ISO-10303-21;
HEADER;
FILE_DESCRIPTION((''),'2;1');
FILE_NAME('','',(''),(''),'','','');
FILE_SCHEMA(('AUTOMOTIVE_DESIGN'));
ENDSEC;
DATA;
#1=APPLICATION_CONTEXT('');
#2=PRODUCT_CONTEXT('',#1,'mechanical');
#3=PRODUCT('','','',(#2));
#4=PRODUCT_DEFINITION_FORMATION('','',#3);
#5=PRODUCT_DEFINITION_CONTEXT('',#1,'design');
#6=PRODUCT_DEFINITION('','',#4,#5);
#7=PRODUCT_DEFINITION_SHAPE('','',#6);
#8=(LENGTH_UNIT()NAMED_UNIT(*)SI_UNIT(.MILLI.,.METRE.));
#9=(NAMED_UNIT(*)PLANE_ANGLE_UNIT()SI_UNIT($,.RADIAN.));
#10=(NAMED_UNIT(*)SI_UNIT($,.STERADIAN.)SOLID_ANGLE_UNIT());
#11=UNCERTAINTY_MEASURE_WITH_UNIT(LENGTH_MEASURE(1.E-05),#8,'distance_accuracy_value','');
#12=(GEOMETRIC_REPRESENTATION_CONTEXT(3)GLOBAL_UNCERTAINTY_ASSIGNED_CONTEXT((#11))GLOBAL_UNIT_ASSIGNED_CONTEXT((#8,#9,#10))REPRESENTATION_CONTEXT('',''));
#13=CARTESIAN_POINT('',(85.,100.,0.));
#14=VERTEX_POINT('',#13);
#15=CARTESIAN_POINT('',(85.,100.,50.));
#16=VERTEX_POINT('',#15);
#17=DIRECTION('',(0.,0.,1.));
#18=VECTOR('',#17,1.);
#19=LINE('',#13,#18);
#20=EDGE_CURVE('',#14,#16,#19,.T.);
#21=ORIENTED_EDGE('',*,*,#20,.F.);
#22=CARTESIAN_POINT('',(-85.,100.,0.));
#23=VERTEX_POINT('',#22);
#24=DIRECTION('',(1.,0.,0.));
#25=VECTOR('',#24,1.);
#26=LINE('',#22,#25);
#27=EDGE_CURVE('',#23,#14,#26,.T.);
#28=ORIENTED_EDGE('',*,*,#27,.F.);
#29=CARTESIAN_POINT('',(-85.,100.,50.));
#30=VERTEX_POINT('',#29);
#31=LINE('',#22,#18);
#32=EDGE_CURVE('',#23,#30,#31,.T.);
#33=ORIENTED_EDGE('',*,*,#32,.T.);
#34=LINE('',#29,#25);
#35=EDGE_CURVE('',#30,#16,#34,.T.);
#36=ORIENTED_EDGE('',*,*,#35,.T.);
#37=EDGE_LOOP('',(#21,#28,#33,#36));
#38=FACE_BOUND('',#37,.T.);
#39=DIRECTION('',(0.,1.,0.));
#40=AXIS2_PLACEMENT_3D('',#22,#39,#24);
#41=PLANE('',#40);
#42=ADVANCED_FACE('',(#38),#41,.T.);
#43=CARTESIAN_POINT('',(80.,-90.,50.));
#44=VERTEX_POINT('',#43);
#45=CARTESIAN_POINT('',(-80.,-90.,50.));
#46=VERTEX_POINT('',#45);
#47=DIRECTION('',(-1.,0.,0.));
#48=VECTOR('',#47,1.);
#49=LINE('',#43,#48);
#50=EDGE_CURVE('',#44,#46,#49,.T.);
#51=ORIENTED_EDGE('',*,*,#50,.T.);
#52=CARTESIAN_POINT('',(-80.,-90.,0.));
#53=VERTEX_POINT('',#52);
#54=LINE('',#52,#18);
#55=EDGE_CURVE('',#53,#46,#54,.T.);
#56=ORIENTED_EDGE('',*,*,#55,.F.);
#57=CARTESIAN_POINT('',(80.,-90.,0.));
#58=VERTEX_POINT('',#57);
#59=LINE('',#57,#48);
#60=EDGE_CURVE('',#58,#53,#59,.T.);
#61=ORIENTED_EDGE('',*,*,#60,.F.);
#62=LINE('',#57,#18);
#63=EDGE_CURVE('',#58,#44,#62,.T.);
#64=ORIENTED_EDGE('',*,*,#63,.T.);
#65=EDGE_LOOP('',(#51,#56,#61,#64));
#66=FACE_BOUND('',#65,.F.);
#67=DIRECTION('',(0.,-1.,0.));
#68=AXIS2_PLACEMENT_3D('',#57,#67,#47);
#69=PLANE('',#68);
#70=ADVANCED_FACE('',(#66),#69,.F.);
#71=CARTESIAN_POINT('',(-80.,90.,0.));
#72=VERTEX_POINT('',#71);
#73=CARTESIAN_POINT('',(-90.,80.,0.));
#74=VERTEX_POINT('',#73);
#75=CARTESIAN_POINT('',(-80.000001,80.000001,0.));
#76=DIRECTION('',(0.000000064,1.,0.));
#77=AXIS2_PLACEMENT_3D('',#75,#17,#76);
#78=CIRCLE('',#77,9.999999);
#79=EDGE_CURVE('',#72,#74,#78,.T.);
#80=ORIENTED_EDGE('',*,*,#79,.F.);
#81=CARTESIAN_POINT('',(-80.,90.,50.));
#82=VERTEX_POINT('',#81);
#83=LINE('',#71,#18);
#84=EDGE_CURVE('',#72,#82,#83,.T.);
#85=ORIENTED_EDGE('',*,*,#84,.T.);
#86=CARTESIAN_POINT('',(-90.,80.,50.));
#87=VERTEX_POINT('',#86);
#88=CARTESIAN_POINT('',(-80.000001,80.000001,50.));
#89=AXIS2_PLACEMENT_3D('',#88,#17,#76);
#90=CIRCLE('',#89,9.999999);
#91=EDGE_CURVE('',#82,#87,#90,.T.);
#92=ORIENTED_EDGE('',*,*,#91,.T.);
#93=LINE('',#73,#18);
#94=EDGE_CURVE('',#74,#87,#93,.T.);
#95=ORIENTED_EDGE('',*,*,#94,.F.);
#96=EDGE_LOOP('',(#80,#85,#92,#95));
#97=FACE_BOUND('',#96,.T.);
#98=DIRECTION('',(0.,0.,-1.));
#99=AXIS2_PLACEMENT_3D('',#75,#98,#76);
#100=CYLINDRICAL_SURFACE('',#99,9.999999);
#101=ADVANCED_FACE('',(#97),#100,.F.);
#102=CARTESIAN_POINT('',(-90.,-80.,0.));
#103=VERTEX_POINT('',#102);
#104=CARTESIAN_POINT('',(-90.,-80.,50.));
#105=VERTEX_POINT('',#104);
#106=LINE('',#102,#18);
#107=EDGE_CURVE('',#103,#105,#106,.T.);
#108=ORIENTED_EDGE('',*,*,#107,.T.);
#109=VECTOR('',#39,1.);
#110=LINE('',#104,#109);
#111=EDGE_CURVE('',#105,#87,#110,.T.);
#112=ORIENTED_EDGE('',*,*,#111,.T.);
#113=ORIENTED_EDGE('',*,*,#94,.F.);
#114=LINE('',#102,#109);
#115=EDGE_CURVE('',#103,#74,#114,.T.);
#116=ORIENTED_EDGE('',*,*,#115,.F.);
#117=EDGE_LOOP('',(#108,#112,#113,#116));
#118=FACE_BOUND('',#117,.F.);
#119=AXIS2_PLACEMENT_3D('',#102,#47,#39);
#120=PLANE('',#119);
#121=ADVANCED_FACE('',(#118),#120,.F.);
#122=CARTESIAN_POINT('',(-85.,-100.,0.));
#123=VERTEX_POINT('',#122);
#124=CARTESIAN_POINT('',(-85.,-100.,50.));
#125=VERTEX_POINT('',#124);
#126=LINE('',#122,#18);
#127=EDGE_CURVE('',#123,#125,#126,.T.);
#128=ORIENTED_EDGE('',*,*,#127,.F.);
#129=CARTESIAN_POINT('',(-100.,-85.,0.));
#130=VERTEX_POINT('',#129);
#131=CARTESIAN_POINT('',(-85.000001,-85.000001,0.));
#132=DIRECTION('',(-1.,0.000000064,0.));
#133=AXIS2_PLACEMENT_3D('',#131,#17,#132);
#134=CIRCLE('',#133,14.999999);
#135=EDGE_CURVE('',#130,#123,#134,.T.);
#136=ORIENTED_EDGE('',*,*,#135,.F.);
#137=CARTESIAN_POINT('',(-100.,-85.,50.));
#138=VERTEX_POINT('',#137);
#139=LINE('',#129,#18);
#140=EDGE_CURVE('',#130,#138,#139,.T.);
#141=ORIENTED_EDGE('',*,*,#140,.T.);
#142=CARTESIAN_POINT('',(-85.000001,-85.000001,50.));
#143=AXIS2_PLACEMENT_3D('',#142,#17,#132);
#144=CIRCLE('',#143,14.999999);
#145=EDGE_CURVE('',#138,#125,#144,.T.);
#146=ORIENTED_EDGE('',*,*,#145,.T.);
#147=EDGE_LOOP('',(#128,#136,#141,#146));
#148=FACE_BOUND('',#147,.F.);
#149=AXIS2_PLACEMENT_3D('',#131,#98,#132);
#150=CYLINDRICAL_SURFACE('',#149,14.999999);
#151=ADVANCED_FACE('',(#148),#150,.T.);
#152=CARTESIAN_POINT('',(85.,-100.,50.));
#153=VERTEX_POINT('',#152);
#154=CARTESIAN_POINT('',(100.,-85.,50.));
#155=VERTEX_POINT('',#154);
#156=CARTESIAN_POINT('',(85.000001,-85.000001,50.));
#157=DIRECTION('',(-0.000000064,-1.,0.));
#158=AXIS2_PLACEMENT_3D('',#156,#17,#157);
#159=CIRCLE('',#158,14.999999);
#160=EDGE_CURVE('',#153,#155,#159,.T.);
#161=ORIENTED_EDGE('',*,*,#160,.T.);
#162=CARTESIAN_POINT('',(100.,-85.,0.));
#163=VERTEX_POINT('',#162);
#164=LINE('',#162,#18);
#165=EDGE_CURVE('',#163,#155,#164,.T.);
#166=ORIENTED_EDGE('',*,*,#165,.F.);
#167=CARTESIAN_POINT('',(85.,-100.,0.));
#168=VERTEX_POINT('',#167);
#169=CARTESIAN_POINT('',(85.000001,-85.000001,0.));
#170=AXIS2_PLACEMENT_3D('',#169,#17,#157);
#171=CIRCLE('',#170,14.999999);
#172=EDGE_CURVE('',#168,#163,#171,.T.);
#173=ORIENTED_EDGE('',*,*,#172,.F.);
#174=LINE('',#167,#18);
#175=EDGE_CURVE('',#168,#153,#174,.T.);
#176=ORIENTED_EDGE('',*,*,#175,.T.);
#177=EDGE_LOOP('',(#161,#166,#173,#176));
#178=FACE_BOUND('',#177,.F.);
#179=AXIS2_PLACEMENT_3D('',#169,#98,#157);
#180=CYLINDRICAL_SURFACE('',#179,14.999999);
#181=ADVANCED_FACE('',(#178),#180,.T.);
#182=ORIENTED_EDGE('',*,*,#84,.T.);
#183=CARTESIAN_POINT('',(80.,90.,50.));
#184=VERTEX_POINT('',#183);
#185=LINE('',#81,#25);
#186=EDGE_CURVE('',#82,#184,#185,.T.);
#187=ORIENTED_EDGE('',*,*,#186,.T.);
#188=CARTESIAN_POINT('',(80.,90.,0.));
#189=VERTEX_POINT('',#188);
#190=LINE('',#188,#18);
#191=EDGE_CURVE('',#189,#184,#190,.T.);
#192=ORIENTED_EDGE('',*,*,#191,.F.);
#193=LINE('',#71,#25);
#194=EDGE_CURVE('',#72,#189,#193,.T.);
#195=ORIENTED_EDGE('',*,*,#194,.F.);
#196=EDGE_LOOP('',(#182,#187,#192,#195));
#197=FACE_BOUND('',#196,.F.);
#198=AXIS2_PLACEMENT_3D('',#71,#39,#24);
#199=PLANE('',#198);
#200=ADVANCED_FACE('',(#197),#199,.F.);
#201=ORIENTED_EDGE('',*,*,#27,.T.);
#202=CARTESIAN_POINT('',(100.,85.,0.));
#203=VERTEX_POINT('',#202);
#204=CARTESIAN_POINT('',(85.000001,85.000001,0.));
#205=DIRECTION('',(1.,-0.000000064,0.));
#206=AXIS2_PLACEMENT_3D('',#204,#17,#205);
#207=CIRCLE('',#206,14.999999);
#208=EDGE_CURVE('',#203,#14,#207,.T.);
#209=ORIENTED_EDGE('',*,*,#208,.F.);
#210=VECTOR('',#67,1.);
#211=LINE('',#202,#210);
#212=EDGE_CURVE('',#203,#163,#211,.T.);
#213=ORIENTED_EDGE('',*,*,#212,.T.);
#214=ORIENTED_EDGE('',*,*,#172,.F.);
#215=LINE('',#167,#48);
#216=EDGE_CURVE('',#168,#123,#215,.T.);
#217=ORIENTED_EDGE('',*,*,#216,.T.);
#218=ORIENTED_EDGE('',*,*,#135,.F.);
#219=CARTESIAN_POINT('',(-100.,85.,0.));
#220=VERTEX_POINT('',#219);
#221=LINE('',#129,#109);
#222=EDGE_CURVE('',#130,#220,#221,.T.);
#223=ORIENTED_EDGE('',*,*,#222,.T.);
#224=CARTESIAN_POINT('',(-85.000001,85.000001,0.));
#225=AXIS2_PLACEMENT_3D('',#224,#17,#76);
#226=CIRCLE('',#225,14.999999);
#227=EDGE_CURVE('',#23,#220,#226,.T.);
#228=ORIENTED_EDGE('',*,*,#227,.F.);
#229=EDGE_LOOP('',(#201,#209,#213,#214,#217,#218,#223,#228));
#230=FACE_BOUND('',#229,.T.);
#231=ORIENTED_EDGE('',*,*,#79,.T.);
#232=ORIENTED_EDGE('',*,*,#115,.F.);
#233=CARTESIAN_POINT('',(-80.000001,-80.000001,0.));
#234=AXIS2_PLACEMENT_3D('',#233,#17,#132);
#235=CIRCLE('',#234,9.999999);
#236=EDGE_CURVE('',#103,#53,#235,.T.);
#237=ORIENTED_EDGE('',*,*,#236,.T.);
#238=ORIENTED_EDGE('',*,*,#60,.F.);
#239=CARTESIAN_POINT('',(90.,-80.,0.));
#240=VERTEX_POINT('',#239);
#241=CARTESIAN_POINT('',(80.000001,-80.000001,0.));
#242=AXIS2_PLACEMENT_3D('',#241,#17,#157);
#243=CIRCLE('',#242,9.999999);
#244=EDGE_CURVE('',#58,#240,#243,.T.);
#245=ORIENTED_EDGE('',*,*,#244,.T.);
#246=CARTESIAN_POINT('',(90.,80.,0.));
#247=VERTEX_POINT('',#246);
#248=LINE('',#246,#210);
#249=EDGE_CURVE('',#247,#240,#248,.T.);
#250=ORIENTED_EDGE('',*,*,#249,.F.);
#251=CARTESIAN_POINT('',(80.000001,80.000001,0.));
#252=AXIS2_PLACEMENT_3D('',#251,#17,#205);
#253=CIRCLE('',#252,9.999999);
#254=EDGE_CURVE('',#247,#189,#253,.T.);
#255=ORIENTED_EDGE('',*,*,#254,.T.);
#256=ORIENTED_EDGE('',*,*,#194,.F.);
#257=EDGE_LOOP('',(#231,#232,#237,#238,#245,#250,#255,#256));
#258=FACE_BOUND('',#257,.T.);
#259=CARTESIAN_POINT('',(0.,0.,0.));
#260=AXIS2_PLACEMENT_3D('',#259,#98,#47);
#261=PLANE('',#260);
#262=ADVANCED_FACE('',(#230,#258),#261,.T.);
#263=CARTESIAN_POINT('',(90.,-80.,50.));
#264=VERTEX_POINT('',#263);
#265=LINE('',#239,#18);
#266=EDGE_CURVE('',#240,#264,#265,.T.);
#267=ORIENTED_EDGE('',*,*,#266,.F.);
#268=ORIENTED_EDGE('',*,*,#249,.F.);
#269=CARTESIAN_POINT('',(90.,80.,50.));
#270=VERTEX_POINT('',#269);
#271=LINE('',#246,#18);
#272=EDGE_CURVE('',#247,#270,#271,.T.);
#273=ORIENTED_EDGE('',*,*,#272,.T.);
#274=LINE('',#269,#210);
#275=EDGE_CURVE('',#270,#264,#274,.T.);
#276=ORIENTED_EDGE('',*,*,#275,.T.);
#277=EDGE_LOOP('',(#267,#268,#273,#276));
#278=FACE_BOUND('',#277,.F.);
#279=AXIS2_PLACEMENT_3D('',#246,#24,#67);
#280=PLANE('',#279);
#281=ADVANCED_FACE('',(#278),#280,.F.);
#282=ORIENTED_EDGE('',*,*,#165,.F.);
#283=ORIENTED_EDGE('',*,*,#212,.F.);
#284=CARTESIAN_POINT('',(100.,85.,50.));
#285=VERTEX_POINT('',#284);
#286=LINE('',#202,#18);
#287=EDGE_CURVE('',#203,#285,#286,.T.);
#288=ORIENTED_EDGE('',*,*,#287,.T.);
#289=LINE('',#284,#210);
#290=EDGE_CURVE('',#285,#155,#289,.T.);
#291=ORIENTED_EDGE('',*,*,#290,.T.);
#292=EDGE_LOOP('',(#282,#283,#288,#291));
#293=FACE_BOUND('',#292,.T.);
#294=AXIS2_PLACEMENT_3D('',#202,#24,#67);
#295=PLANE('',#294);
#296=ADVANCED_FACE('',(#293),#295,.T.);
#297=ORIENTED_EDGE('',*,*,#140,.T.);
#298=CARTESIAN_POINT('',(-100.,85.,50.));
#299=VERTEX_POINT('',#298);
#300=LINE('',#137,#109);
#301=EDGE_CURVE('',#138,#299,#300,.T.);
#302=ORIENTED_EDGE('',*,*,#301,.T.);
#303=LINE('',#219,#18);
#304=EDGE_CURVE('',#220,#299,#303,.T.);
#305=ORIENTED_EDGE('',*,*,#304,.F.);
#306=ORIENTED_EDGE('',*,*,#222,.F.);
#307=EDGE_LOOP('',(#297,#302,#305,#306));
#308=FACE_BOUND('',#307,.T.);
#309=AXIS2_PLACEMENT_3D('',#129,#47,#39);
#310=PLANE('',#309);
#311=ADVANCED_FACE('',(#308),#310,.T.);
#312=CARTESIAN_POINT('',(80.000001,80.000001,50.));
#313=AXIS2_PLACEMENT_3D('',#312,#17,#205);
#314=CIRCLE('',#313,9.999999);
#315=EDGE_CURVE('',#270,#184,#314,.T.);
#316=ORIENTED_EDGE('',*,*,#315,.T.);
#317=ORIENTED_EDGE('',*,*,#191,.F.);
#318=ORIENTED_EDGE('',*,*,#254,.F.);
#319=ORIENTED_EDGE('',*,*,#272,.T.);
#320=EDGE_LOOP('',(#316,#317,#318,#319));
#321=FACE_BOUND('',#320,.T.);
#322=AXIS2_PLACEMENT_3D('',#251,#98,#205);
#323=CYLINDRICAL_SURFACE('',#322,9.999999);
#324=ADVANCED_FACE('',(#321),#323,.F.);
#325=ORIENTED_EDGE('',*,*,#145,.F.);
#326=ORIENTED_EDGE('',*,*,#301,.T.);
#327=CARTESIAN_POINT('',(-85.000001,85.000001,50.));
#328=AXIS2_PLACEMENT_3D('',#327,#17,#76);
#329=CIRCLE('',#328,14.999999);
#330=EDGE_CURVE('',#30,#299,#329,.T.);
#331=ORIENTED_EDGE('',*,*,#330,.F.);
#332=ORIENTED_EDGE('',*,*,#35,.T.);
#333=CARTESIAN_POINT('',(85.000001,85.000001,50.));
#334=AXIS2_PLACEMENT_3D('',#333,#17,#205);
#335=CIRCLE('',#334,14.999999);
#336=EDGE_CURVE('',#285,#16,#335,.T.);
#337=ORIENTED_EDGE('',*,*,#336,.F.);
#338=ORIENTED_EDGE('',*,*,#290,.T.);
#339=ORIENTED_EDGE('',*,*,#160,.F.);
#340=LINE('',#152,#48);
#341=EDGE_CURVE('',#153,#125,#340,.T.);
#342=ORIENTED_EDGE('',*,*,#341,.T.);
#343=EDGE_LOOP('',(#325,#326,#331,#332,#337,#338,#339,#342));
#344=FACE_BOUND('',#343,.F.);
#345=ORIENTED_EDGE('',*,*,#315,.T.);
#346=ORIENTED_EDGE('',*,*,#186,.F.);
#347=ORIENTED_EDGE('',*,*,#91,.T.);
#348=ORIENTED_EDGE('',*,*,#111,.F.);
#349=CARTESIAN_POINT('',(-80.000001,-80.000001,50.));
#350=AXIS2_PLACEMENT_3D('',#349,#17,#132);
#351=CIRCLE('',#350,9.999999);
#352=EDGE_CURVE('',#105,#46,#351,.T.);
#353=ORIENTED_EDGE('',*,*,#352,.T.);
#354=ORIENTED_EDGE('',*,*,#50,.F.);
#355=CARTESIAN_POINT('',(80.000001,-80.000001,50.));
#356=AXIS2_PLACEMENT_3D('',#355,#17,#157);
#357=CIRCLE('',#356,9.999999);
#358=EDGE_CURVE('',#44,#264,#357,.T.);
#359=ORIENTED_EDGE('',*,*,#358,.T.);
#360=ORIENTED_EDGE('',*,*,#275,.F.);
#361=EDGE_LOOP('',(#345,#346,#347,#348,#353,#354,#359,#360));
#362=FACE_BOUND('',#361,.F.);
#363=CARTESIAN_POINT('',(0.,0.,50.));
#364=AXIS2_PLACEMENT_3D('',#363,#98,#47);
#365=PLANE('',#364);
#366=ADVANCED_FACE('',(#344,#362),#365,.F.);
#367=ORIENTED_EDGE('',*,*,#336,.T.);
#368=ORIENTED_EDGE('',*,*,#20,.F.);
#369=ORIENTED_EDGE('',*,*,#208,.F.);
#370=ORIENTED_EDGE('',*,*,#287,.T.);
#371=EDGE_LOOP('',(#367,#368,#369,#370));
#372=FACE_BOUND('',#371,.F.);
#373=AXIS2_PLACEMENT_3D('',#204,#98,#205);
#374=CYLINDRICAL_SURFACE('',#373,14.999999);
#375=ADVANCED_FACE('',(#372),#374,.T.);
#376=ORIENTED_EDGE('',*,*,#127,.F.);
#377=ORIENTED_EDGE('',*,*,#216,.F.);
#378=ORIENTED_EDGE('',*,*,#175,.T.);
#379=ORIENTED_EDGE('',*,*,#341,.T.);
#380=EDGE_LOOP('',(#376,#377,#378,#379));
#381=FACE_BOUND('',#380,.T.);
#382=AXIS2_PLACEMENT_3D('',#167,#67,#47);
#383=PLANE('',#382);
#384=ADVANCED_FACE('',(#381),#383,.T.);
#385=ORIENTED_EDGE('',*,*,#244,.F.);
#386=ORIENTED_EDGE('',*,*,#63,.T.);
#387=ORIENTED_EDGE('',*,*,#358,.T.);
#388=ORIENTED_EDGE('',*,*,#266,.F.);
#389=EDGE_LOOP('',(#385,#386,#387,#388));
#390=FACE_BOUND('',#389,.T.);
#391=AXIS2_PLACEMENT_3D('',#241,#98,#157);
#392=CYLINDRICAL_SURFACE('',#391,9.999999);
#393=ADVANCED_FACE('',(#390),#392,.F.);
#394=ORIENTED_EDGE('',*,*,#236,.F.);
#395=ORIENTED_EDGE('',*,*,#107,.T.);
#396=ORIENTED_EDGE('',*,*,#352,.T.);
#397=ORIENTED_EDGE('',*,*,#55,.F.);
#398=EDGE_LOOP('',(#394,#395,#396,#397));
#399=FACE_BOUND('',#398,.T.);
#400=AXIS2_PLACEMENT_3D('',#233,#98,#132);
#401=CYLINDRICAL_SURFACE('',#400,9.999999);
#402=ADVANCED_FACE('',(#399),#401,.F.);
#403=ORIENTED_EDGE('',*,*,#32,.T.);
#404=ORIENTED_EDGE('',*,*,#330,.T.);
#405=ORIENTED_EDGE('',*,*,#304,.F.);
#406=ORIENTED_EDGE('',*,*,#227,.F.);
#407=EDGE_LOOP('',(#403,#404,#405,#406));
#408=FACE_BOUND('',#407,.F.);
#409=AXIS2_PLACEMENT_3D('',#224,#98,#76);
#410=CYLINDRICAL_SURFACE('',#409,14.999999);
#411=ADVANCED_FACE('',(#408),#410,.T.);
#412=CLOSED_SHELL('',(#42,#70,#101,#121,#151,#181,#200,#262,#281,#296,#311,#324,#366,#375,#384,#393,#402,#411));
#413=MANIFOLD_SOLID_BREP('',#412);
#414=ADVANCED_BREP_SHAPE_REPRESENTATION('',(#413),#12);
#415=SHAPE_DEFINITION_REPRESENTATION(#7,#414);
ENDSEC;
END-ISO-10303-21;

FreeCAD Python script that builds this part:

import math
import FreeCAD as App
import Part
import Sketcher
from FreeCAD import Vector
Q = App.Units.Quantity

doc = App.newDocument("Part")
body = doc.addObject("PartDesign::Body", "Body")

# Sketch on XY plane
sketch1 = body.newObject("Sketcher::SketchObject", "Sketch")
sketch1.AttachmentSupport = (doc.getObject("XY_Plane"), [""])
sketch1.MapMode = "FlatFace"
sketch1.addGeometry([
    Part.LineSegment(Vector(85, 100, 0), Vector(-85, 100, 0)),  # 0
    Part.ArcOfCircle(Part.Circle(Vector(-85, 85, 0), Vector(0, 0, 1), 15), math.radians(90), math.radians(180)),  # 1
    Part.LineSegment(Vector(-100, 85, 0), Vector(-100, -85, 0)),  # 2
    Part.ArcOfCircle(Part.Circle(Vector(-85, -85, 0), Vector(0, 0, 1), 15), math.radians(180), math.radians(270)),  # 3
    Part.LineSegment(Vector(-85, -100, 0), Vector(85, -100, 0)),  # 4
    Part.ArcOfCircle(Part.Circle(Vector(85, -85, 0), Vector(0, 0, 1), 15), math.radians(-90), math.radians(0)),  # 5
    Part.LineSegment(Vector(100, -85, 0), Vector(100, 85, 0)),  # 6
    Part.ArcOfCircle(Part.Circle(Vector(85, 85, 0), Vector(0, 0, 1), 15), math.radians(0), math.radians(90)),  # 7
    Part.LineSegment(Vector(-80, 90, 0), Vector(80, 90, 0)),  # 8
    Part.ArcOfCircle(Part.Circle(Vector(80, 80, 0), Vector(0, 0, 1), 10), math.radians(0), math.radians(90)),  # 9
    Part.LineSegment(Vector(90, 80, 0), Vector(90, -80, 0)),  # 10
    Part.ArcOfCircle(Part.Circle(Vector(80, -80, 0), Vector(0, 0, 1), 10), math.radians(-90), math.radians(0)),  # 11
    Part.LineSegment(Vector(80, -90, 0), Vector(-80, -90, 0)),  # 12
    Part.ArcOfCircle(Part.Circle(Vector(-80, -80, 0), Vector(0, 0, 1), 10), math.radians(180), math.radians(270)),  # 13
    Part.LineSegment(Vector(-90, -80, 0), Vector(-90, 80, 0)),  # 14
    Part.ArcOfCircle(Part.Circle(Vector(-80, 80, 0), Vector(0, 0, 1), 10), math.radians(90), math.radians(180)),  # 15
], False)
sketch1.addConstraint([
    Sketcher.Constraint("Tangent", 0, 2, 1, 1),
    Sketcher.Constraint("Tangent", 1, 2, 2, 1),
    Sketcher.Constraint("Tangent", 2, 2, 3, 1),
    Sketcher.Constraint("Tangent", 3, 2, 4, 1),
    Sketcher.Constraint("Tangent", 4, 2, 5, 1),
    Sketcher.Constraint("Tangent", 5, 2, 6, 1),
    Sketcher.Constraint("Tangent", 6, 2, 7, 1),
    Sketcher.Constraint("Tangent", 7, 2, 0, 1),
    Sketcher.Constraint("Tangent", 8, 2, 9, 2),
    Sketcher.Constraint("Tangent", 9, 1, 10, 1),
    Sketcher.Constraint("Tangent", 10, 2, 11, 2),
    Sketcher.Constraint("Tangent", 11, 1, 12, 1),
    Sketcher.Constraint("Tangent", 12, 2, 13, 2),
    Sketcher.Constraint("Tangent", 13, 1, 14, 1),
    Sketcher.Constraint("Tangent", 14, 2, 15, 2),
    Sketcher.Constraint("Tangent", 15, 1, 8, 1),
    Sketcher.Constraint("Horizontal", 0),
    Sketcher.Constraint("Vertical", 2),
    Sketcher.Constraint("Horizontal", 4),
    Sketcher.Constraint("Vertical", 6),
    Sketcher.Constraint("Horizontal", 8),
    Sketcher.Constraint("Vertical", 10),
    Sketcher.Constraint("Horizontal", 12),
    Sketcher.Constraint("Vertical", 14),
    Sketcher.Constraint("Equal", 1, 3),
    Sketcher.Constraint("Equal", 3, 5),
    Sketcher.Constraint("Equal", 5, 7),
    Sketcher.Constraint("Equal", 9, 11),
    Sketcher.Constraint("Equal", 11, 13),
    Sketcher.Constraint("Equal", 13, 15),
    Sketcher.Constraint("Symmetric", 1, 3, 5, 3, -1, 1),
    Sketcher.Constraint("Symmetric", 9, 3, 13, 3, -1, 1),
    Sketcher.Constraint("Equal", 4, 2),
    Sketcher.Constraint("Equal", 12, 10),
    Sketcher.Constraint("Radius", 1, Q("14.999999 mm")),
    Sketcher.Constraint("Radius", 9, Q("9.999999 mm")),
    Sketcher.Constraint("DistanceX", 0, 2, 0, 1, Q("170 mm")),
    Sketcher.Constraint("DistanceX", 8, 1, 8, 2, Q("160 mm")),
])
pad1 = body.newObject("PartDesign::Pad", "Pad")
pad1.Profile = sketch1
pad1.Length = 50

doc.recompute()
